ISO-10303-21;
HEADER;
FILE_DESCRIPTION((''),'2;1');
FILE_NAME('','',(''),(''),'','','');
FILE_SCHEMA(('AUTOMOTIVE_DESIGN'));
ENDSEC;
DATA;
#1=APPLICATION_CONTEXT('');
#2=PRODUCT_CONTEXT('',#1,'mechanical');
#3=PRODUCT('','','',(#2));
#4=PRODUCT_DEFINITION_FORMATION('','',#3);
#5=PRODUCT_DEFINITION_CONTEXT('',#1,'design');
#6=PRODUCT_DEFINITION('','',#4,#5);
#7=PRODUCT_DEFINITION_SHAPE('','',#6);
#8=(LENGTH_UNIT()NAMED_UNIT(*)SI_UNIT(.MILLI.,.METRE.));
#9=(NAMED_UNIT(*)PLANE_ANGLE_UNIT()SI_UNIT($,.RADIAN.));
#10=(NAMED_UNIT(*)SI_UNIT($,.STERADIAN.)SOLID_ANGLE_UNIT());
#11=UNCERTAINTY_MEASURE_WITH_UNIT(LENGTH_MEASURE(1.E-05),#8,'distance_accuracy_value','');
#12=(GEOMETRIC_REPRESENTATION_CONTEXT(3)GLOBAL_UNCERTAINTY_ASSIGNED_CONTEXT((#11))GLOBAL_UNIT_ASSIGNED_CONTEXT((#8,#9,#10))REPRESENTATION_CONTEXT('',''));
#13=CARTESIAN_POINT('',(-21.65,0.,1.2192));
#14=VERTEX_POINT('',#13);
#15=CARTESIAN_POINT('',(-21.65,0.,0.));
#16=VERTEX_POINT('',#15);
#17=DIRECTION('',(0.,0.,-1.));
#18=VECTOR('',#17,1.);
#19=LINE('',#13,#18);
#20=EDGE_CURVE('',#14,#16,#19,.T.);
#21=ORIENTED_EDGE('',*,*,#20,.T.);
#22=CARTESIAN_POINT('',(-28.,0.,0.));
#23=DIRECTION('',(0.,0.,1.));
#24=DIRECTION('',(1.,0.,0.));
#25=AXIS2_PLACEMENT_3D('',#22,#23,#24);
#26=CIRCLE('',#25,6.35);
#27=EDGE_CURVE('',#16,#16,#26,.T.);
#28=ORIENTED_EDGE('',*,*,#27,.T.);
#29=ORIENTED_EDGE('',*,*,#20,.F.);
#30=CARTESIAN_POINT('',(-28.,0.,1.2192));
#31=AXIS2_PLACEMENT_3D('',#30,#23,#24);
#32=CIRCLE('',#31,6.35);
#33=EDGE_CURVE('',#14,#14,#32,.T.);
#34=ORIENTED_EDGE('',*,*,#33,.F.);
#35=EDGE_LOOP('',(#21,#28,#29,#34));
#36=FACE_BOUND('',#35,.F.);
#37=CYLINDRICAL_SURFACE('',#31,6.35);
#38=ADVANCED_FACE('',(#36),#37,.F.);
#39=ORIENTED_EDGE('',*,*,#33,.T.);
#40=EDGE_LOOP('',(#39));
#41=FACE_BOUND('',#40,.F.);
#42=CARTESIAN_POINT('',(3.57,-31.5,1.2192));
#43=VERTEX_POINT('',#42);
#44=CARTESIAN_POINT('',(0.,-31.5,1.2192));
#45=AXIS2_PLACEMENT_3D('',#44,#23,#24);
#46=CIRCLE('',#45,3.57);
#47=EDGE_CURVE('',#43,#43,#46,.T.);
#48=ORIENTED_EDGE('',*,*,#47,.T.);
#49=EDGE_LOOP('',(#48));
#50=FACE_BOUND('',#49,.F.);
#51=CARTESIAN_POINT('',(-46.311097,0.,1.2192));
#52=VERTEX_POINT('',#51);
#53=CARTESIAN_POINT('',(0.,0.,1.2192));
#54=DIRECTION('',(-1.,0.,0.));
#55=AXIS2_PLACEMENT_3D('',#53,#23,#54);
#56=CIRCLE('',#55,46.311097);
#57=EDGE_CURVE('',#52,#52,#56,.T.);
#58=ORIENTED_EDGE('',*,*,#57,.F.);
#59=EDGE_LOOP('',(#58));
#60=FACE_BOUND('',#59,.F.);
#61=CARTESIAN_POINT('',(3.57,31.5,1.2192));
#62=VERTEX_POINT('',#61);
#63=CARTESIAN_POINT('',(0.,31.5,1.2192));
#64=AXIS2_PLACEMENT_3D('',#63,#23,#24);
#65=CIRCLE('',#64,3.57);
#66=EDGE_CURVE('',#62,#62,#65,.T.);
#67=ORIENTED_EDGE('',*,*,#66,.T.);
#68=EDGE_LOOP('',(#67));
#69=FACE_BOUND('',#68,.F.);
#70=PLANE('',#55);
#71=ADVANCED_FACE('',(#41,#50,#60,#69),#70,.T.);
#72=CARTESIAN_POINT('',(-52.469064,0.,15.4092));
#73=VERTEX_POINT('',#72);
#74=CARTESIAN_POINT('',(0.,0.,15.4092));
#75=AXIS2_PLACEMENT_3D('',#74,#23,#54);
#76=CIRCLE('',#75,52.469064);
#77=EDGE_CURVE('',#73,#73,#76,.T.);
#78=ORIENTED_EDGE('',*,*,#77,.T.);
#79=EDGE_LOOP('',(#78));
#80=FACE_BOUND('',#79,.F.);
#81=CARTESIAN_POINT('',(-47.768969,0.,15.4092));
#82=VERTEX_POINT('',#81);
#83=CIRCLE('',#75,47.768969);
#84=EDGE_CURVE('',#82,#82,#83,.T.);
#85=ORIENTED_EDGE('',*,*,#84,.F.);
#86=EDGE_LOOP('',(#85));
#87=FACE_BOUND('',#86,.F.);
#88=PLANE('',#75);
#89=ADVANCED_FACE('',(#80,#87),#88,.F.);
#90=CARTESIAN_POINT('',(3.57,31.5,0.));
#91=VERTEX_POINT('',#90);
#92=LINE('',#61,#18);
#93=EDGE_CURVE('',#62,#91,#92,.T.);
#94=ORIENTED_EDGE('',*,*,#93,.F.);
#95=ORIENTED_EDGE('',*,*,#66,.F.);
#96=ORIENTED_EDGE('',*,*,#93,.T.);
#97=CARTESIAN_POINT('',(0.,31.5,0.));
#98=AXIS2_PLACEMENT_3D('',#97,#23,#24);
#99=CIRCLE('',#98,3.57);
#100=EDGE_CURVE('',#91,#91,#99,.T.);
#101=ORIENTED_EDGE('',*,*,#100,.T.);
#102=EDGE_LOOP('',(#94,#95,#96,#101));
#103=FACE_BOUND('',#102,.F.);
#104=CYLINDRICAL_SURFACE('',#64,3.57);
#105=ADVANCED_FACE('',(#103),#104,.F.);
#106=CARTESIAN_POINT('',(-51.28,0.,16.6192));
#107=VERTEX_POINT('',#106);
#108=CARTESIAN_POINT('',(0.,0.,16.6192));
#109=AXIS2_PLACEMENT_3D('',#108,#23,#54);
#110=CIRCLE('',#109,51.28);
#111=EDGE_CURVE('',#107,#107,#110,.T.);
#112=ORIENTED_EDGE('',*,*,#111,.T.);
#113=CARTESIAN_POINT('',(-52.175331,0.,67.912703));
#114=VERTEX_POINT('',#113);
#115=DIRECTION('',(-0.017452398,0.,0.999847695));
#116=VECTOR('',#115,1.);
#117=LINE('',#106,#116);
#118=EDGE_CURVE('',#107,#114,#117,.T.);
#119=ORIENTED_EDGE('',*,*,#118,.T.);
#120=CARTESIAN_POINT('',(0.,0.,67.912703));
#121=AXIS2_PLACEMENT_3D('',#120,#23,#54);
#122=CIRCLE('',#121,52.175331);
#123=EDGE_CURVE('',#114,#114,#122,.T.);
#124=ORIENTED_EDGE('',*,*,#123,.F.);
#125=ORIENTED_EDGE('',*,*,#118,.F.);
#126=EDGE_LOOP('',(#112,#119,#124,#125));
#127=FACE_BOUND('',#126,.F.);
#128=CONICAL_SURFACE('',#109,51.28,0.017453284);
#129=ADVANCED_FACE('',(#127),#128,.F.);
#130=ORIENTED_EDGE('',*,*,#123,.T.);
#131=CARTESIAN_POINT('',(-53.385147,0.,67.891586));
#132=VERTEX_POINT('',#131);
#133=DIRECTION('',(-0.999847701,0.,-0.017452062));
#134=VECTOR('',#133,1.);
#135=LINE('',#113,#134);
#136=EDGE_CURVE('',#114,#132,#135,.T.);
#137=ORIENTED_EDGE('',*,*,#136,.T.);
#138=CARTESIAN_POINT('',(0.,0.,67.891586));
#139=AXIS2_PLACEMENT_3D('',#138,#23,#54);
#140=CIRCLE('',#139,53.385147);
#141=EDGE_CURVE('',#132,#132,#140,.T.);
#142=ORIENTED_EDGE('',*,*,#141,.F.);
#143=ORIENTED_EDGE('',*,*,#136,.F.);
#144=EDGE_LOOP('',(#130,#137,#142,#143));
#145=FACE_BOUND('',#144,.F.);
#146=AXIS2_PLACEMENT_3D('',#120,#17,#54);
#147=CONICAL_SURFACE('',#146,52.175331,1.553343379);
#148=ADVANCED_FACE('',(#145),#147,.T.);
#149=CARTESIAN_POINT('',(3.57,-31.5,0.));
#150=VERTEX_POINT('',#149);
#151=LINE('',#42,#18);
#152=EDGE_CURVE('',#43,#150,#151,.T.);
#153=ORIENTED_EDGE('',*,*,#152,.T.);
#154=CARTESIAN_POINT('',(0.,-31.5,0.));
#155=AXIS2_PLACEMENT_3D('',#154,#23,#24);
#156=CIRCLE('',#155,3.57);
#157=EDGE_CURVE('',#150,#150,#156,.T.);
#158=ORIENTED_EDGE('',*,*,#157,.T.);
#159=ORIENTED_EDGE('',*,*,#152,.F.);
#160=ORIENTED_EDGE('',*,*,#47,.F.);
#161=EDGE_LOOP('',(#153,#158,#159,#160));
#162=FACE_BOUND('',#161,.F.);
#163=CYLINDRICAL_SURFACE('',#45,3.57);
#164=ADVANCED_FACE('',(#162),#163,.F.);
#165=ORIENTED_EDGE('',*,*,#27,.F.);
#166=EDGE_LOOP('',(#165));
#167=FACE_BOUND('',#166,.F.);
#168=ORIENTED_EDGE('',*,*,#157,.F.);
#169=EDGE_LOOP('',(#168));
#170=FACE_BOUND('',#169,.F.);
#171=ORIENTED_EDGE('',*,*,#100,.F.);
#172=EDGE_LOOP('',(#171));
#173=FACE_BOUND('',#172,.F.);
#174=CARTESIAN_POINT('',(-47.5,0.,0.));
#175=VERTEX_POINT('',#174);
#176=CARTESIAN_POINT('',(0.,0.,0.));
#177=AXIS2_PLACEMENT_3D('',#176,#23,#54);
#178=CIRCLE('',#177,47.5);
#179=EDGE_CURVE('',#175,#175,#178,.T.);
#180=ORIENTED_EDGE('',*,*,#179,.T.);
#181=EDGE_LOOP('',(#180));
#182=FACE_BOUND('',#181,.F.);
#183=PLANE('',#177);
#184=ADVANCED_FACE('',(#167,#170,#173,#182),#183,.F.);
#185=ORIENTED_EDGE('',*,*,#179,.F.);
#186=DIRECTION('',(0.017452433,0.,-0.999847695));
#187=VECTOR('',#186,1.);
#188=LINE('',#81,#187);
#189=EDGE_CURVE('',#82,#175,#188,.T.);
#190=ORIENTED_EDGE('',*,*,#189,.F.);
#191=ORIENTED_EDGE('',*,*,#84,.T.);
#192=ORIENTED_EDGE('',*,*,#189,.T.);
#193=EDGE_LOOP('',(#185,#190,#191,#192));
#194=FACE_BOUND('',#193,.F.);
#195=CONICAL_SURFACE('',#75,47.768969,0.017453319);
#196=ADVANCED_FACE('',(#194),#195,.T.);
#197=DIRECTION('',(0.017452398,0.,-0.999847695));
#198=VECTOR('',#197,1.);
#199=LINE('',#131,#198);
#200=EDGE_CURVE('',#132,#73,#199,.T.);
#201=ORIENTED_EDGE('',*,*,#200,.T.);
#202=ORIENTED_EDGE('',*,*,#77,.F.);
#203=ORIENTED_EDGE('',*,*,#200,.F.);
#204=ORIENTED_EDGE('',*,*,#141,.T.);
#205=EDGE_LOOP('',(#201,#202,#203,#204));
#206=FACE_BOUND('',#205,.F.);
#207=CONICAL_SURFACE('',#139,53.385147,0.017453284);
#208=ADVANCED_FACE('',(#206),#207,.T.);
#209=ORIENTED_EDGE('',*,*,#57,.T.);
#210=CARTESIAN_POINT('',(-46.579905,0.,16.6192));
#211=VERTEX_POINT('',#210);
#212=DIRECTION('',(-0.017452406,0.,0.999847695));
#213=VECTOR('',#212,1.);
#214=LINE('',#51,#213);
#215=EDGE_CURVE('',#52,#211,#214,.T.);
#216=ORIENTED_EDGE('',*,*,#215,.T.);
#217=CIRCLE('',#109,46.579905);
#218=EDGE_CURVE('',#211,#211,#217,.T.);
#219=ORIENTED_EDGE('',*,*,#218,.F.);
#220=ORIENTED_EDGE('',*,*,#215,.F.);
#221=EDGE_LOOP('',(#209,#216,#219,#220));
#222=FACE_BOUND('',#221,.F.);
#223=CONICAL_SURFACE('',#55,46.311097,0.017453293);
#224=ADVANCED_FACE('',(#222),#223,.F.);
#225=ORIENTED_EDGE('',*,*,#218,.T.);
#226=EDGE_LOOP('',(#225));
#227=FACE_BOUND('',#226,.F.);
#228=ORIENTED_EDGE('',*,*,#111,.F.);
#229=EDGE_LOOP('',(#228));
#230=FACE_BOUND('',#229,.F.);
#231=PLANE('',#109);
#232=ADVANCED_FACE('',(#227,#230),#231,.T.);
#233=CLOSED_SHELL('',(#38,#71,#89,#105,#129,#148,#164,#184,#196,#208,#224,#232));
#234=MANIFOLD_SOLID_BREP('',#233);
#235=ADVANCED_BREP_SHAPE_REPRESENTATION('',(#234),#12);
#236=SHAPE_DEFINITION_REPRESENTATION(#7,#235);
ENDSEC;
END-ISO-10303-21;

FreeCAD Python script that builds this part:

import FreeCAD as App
import Part
import Sketcher
from FreeCAD import Vector
Q = App.Units.Quantity

doc = App.newDocument("Part")
body = doc.addObject("PartDesign::Body", "Body")

# Sketch on XZ plane
sketch1 = body.newObject("Sketcher::SketchObject", "Sketch")
sketch1.AttachmentSupport = (doc.getObject("XZ_Plane"), [""])
sketch1.MapMode = "FlatFace"
sketch1.addGeometry([
    Part.LineSegment(Vector(0, 0, 0), Vector(0, 1.2, 0)),  # 0
    Part.LineSegment(Vector(0, 1.2, 0), Vector(-46.3, 1.2, 0)),  # 1
    Part.LineSegment(Vector(-46.3, 1.2, 0), Vector(-46.6, 16.6, 0)),  # 2
    Part.LineSegment(Vector(-46.6, 16.6, 0), Vector(-51.3, 16.6, 0)),  # 3
    Part.LineSegment(Vector(-51.3, 16.6, 0), Vector(-52.2, 67.9, 0)),  # 4
    Part.LineSegment(Vector(-52.2, 67.9, 0), Vector(-53.4, 67.9, 0)),  # 5
    Part.LineSegment(Vector(-53.4, 67.9, 0), Vector(-52.5, 15.4, 0)),  # 6
    Part.LineSegment(Vector(-52.5, 15.4, 0), Vector(-47.8, 15.4, 0)),  # 7
    Part.LineSegment(Vector(-47.8, 15.4, 0), Vector(-47.5, 0, 0)),  # 8
    Part.LineSegment(Vector(-47.5, 0, 0), Vector(0, 0, 0)),  # 9
], False)
sketch1.addConstraint([
    Sketcher.Constraint("Coincident", 0, 2, 1, 1),
    Sketcher.Constraint("Coincident", 1, 2, 2, 1),
    Sketcher.Constraint("Coincident", 2, 2, 3, 1),
    Sketcher.Constraint("Coincident", 3, 2, 4, 1),
    Sketcher.Constraint("Coincident", 4, 2, 5, 1),
    Sketcher.Constraint("Coincident", 5, 2, 6, 1),
    Sketcher.Constraint("Coincident", 6, 2, 7, 1),
    Sketcher.Constraint("Coincident", 7, 2, 8, 1),
    Sketcher.Constraint("Coincident", 8, 2, 9, 1),
    Sketcher.Constraint("Coincident", 9, 2, 0, 1),
    Sketcher.Constraint("Vertical", 0),
    Sketcher.Constraint("Horizontal", 1),
    Sketcher.Constraint("Horizontal", 3),
    Sketcher.Constraint("Horizontal", 7),
    Sketcher.Constraint("Horizontal", 9),
    Sketcher.Constraint("Coincident", 9, 2, -1, 1),
    Sketcher.Constraint("Parallel", 2, 4),
    Sketcher.Constraint("Perpendicular", 4, 5),
    Sketcher.Constraint("Perpendicular", 5, 6),
    Sketcher.Constraint("Parallel", 6, 8),
    Sketcher.Constraint("Equal", 3, 7),
    Sketcher.Constraint("Angle", 2, Q("91 deg")),
    Sketcher.Constraint("DistanceY", 0, 1, 0, 2, Q("0.048 in")),
    Sketcher.Constraint("DistanceX", 9, 1, 9, 2, 47.5),
    Sketcher.Constraint("Distance", 5, 1.21),
    Sketcher.Constraint("DistanceY", -1, 1, 2, 2, 16.6192),
    Sketcher.Constraint("DistanceX", 3, 2, -1, 1, 51.28),
    Sketcher.Constraint("DistanceY", -1, 1, 6, 2, 15.4092),
    Sketcher.Constraint("Distance", 6, 52.490381),
])
revolution = body.newObject("PartDesign::Revolution", "Revolution")
revolution.Profile = sketch1
revolution.ReferenceAxis = (sketch1, ["V_Axis"])
revolution.Angle = 360

# Sketch on XY plane
sketch2 = body.newObject("Sketcher::SketchObject", "Sketch001")
sketch2.AttachmentSupport = (doc.getObject("XY_Plane"), [""])
sketch2.MapMode = "FlatFace"
sketch2.AttachmentOffset = App.Placement(Vector(0, 0, 0.048 * 25.4), App.Rotation())
sketch2.addGeometry([
    Part.Circle(Vector(0, 31.5, 0), Vector(0, 0, 1), 3.6),
    Part.Circle(Vector(0, -31.5, 0), Vector(0, 0, 1), 3.6),
    Part.Circle(Vector(-28, 0, 0), Vector(0, 0, 1), 6.3),
], False)
sketch2.addConstraint([
    Sketcher.Constraint("Equal", 0, 1),
    Sketcher.Constraint("Symmetric", 0, 3, 1, 3, -1, 1),
    Sketcher.Constraint("PointOnObject", 0, 3, -2),
    Sketcher.Constraint("PointOnObject", 2, 3, -1),
    Sketcher.Constraint("Diameter", 2, Q("0.5 in")),
    Sketcher.Constraint("Diameter", 0, 7.14),
    Sketcher.Constraint("DistanceY", -1, 1, 0, 3, 31.5),
    Sketcher.Constraint("DistanceX", 2, 3, -1, 1, 28.0),
])
pocket1 = body.newObject("PartDesign::Pocket", "Pocket")
pocket1.Profile = sketch2
pocket1.Type = "ThroughAll"

doc.recompute()
